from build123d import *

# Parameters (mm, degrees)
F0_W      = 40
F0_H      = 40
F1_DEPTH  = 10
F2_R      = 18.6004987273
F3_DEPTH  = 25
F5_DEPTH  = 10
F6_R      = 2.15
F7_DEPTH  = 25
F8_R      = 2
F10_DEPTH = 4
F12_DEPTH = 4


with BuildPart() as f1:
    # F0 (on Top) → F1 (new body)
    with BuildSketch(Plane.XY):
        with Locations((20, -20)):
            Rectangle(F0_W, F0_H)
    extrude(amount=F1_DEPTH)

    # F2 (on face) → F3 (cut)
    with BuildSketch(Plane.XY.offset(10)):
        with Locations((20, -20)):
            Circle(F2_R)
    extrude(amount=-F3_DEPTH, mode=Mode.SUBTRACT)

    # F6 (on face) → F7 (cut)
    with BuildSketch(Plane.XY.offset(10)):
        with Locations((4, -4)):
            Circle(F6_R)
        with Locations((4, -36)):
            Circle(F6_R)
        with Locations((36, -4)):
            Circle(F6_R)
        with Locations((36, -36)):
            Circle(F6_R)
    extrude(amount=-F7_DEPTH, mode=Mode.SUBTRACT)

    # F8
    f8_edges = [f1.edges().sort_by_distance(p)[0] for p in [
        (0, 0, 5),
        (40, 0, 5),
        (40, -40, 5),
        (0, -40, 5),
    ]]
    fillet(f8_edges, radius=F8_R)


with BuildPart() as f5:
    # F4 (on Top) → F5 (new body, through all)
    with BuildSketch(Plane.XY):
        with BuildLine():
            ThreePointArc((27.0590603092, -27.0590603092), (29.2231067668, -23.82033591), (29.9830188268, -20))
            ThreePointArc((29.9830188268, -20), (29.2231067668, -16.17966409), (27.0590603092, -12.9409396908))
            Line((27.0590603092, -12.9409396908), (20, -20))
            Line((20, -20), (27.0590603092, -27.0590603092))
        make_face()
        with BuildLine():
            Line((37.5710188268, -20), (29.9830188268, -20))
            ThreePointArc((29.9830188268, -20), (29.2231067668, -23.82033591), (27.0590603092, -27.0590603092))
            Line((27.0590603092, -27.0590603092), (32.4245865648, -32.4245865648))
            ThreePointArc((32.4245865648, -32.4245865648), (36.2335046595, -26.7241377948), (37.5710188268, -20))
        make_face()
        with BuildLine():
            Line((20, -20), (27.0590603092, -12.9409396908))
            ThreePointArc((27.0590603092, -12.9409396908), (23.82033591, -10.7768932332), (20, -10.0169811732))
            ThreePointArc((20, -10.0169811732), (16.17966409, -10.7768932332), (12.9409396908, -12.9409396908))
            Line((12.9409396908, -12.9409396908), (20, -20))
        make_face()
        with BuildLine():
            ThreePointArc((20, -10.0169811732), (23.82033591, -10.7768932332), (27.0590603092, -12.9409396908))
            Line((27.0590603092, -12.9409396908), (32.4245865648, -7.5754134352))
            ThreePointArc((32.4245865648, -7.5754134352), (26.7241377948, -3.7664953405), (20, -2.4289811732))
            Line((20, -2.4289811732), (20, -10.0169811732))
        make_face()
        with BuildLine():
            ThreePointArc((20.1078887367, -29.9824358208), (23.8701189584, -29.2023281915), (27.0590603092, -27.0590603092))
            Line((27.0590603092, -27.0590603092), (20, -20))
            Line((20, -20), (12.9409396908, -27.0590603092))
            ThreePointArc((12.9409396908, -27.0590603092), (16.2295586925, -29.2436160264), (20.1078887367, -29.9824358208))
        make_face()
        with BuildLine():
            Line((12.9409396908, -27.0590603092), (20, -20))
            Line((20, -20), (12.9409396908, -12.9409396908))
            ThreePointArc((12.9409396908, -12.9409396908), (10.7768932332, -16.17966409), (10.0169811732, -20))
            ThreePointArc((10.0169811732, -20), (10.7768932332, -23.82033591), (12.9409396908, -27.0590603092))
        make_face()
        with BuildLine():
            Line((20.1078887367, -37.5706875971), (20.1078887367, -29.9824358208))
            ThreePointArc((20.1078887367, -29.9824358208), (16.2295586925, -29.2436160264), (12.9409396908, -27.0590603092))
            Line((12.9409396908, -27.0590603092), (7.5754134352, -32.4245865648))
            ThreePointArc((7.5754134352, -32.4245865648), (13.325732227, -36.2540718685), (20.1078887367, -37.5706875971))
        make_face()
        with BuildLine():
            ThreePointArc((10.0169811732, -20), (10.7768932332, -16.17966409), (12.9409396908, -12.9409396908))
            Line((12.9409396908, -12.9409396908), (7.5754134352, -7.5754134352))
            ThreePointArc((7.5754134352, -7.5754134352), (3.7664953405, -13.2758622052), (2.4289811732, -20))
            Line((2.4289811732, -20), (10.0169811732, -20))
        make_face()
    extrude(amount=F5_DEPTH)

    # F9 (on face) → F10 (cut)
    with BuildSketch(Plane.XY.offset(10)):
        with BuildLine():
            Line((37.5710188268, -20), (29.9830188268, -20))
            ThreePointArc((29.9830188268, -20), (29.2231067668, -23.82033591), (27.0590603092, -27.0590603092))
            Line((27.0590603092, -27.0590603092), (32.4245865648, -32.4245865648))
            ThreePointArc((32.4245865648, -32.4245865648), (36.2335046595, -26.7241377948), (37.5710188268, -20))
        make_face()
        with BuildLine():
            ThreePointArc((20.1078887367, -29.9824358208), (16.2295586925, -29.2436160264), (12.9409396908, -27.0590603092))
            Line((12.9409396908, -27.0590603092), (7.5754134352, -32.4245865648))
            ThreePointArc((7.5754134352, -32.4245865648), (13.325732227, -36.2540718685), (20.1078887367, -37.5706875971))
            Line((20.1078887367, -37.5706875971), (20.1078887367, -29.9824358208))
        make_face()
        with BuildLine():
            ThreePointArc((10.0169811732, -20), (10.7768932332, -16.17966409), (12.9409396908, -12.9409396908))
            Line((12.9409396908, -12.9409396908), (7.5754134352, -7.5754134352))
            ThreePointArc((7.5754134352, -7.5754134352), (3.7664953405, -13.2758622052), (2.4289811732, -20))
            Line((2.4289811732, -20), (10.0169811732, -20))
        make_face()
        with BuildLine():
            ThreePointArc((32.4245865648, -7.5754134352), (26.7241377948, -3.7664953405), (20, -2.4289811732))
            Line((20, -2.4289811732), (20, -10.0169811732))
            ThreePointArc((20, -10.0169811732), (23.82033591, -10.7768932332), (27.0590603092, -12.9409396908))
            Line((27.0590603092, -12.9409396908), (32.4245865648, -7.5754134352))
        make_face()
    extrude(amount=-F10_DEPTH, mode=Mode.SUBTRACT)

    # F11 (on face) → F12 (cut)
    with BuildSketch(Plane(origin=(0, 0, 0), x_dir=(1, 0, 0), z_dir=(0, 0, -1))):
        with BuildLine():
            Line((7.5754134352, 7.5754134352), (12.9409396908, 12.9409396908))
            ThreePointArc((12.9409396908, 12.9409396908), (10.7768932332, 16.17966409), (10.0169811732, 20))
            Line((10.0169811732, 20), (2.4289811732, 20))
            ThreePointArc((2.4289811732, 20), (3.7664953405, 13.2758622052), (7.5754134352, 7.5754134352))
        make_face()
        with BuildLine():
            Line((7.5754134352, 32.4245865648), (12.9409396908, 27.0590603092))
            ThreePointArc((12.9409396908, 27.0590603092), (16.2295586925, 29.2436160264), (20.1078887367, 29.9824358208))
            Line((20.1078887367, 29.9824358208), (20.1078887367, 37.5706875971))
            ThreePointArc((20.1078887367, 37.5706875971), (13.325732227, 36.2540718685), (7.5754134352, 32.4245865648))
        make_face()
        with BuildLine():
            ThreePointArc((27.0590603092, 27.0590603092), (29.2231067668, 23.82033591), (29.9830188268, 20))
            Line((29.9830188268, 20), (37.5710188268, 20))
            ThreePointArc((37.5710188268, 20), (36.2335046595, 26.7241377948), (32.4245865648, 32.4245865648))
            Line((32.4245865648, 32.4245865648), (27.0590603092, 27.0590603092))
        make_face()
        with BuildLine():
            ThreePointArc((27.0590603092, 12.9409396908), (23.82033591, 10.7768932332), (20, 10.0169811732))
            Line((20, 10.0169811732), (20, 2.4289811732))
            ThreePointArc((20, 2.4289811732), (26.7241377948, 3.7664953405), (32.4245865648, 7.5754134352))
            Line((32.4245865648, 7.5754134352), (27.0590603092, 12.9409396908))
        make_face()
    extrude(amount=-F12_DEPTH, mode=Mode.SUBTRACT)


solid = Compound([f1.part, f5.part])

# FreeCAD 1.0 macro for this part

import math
import FreeCAD as App
import Part
import Sketcher
Q = App.Units.Quantity


def edges_at(feature, points):
    """Names of the edges that pass closest to the given points."""
    edges = feature.Shape.Edges
    near = lambda p: min(range(len(edges)), key=lambda i: edges[i].distToShape(Part.Vertex(*p))[0])
    return sorted({f"Edge{near(p) + 1}" for p in points})


def add_polygon(sketch, points):
    """Adds a closed chain of lines whose ends are joined by coincident constraints."""
    first, n = sketch.GeometryCount, len(points)
    for a, b in zip(points, points[1:] + points[:1]):
        sketch.addGeometry(Part.LineSegment(App.Vector(*a, 0), App.Vector(*b, 0)), False)
    for i in range(n):
        sketch.addConstraint(Sketcher.Constraint("Coincident", first + i, 2, first + (i + 1) % n, 1))

doc = App.newDocument("Part")
body = doc.addObject("PartDesign::Body", "Body")

# Sketch on XY plane
sketch1 = body.newObject("Sketcher::SketchObject", "Sketch")
sketch1.AttachmentSupport = (doc.getObject("XY_Plane"), [""])
sketch1.MapMode = "FlatFace"
add_polygon(sketch1, [(0, 0), (0, -40), (40, -40), (40, 0)])  # lines 0-3
sketch1.addConstraint(Sketcher.Constraint("Vertical", 0))
sketch1.addConstraint(Sketcher.Constraint("Horizontal", 1))
sketch1.addConstraint(Sketcher.Constraint("Vertical", 2))
sketch1.addConstraint(Sketcher.Constraint("Horizontal", 3))
sketch1.addConstraint(Sketcher.Constraint("Coincident", 3, 2, -1, 1))
sketch1.addConstraint(Sketcher.Constraint("Equal", 3, 0))
sketch1.addConstraint(Sketcher.Constraint("DistanceX", 1, 1, 1, 2, Q("40 mm")))
pad1 = body.newObject("PartDesign::Pad", "Pad")
pad1.Profile = sketch1
pad1.Length = 10

# Sketch on XY plane
sketch2 = body.newObject("Sketcher::SketchObject", "Sketch001")
sketch2.AttachmentSupport = (doc.getObject("XY_Plane"), [""])
sketch2.MapMode = "FlatFace"
sketch2.AttachmentOffset = App.Placement(App.Vector(0, 0, 10), App.Rotation())
sketch2.addGeometry(Part.Circle(App.Vector(20, -20, 0), App.Vector(0, 0, 1), 19), False)
sketch2.addConstraint(Sketcher.Constraint("DistanceX", -1, 1, 0, 3, Q("20 mm")))
sketch2.addConstraint(Sketcher.Constraint("DistanceY", 0, 3, -1, 1, Q("20 mm")))
sketch2.addConstraint(Sketcher.Constraint("Diameter", 0, Q("37.200997 mm")))
pocket1 = body.newObject("PartDesign::Pocket", "Pocket")
pocket1.Profile = sketch2
pocket1.Length = 25

# Sketch on XY plane
sketch3 = body.newObject("Sketcher::SketchObject", "Sketch002")
sketch3.AttachmentSupport = (doc.getObject("XY_Plane"), [""])
sketch3.MapMode = "FlatFace"
sketch3.AttachmentOffset = App.Placement(App.Vector(0, 0, 10), App.Rotation())
sketch3.addGeometry(Part.Circle(App.Vector(4, -4, 0), App.Vector(0, 0, 1), 2.1), False)
sketch3.addGeometry(Part.Circle(App.Vector(4, -36, 0), App.Vector(0, 0, 1), 2.1), False)
sketch3.addGeometry(Part.Circle(App.Vector(36, -4, 0), App.Vector(0, 0, 1), 2.1), False)
sketch3.addGeometry(Part.Circle(App.Vector(36, -36, 0), App.Vector(0, 0, 1), 2.1), False)
sketch3.addConstraint(Sketcher.Constraint("Equal", 0, 1))
sketch3.addConstraint(Sketcher.Constraint("Equal", 1, 2))
sketch3.addConstraint(Sketcher.Constraint("Equal", 2, 3))
sketch3.addConstraint(Sketcher.Constraint("Horizontal", 0, 3, 2, 3))
sketch3.addConstraint(Sketcher.Constraint("Horizontal", 1, 3, 3, 3))
sketch3.addConstraint(Sketcher.Constraint("Vertical", 0, 3, 1, 3))
sketch3.addConstraint(Sketcher.Constraint("Vertical", 2, 3, 3, 3))
sketch3.addConstraint(Sketcher.Constraint("Diameter", 0, Q("4.3 mm")))
sketch3.addConstraint(Sketcher.Constraint("DistanceX", -1, 1, 0, 3, Q("4 mm")))
sketch3.addConstraint(Sketcher.Constraint("DistanceY", 0, 3, -1, 1, Q("4 mm")))
sketch3.addConstraint(Sketcher.Constraint("DistanceY", 1, 3, -1, 1, Q("36 mm")))
sketch3.addConstraint(Sketcher.Constraint("DistanceX", -1, 1, 2, 3, Q("36 mm")))
pocket2 = body.newObject("PartDesign::Pocket", "Pocket001")
pocket2.Profile = sketch3
pocket2.Length = 25
doc.recompute()

fillet = body.newObject("PartDesign::Fillet", "Fillet")
fillet.Base = (pocket2, edges_at(pocket2, [
    (0, 0, 5),
    (40, 0, 5),
    (40, -40, 5),
    (0, -40, 5),
]))
fillet.Radius = 2
body2 = doc.addObject("PartDesign::Body", "Body001")

# Sketch on XY plane
sketch4 = body2.newObject("Sketcher::SketchObject", "Sketch003")
sketch4.AttachmentSupport = (doc.getObject("XY_Plane001"), [""])
sketch4.MapMode = "FlatFace"
sketch4.addGeometry(Part.ArcOfCircle(Part.Circle(App.Vector(20, -20, 0), App.Vector(0, 0, 1), 9.983019), math.radians(0), math.radians(45)), False)
sketch4.addGeometry(Part.LineSegment(App.Vector(27.05906, -12.94094, 0), App.Vector(32.424587, -7.575413, 0)), False)
sketch4.addGeometry(Part.ArcOfCircle(Part.Circle(App.Vector(20, -20, 0), App.Vector(0, 0, 1), 17.571019), math.radians(45), math.radians(90)), False)
sketch4.addGeometry(Part.LineSegment(App.Vector(20, -2.428981, 0), App.Vector(20, -10.016981, 0)), False)
sketch4.addGeometry(Part.ArcOfCircle(Part.Circle(App.Vector(20, -20, 0), App.Vector(0, 0, 1), 9.983019), math.radians(90), math.radians(135)), False)
sketch4.addGeometry(Part.LineSegment(App.Vector(12.94094, -12.94094, 0), App.Vector(7.575413, -7.575413, 0)), False)
sketch4.addGeometry(Part.ArcOfCircle(Part.Circle(App.Vector(20, -20, 0), App.Vector(0, 0, 1), 17.571019), math.radians(135), math.radians(180)), False)
sketch4.addGeometry(Part.LineSegment(App.Vector(2.428981, -20, 0), App.Vector(10.016981, -20, 0)), False)
sketch4.addGeometry(Part.ArcOfCircle(Part.Circle(App.Vector(20, -20, 0), App.Vector(0, 0, 1), 9.983019), math.radians(180), math.radians(225)), False)
sketch4.addGeometry(Part.LineSegment(App.Vector(12.94094, -27.05906, 0), App.Vector(7.575413, -32.424587, 0)), False)
sketch4.addGeometry(Part.ArcOfCircle(Part.Circle(App.Vector(20, -20, 0), App.Vector(0, 0, 1), 17.571019), math.radians(-135), math.radians(-89.648193)), False)
sketch4.addGeometry(Part.LineSegment(App.Vector(20.107889, -37.570688, 0), App.Vector(20.107889, -29.982436, 0)), False)
sketch4.addGeometry(Part.ArcOfCircle(Part.Circle(App.Vector(20, -20, 0), App.Vector(0, 0, 1), 9.983019), math.radians(-89.38078), math.radians(-45)), False)
sketch4.addGeometry(Part.LineSegment(App.Vector(27.05906, -27.05906, 0), App.Vector(32.424587, -32.424587, 0)), False)
sketch4.addGeometry(Part.ArcOfCircle(Part.Circle(App.Vector(20, -20, 0), App.Vector(0, 0, 1), 17.571019), math.radians(-45), math.radians(0)), False)
sketch4.addGeometry(Part.LineSegment(App.Vector(37.571019, -20, 0), App.Vector(29.983019, -20, 0)), False)
sketch4.addConstraint(Sketcher.Constraint("Coincident", 0, 2, 1, 1))
sketch4.addConstraint(Sketcher.Constraint("Coincident", 1, 2, 2, 1))
sketch4.addConstraint(Sketcher.Constraint("Coincident", 2, 2, 3, 1))
sketch4.addConstraint(Sketcher.Constraint("Coincident", 3, 2, 4, 1))
sketch4.addConstraint(Sketcher.Constraint("Coincident", 4, 2, 5, 1))
sketch4.addConstraint(Sketcher.Constraint("Coincident", 5, 2, 6, 1))
sketch4.addConstraint(Sketcher.Constraint("Coincident", 6, 2, 7, 1))
sketch4.addConstraint(Sketcher.Constraint("Coincident", 7, 2, 8, 1))
sketch4.addConstraint(Sketcher.Constraint("Coincident", 8, 2, 9, 1))
sketch4.addConstraint(Sketcher.Constraint("Coincident", 9, 2, 10, 1))
sketch4.addConstraint(Sketcher.Constraint("Coincident", 10, 2, 11, 1))
sketch4.addConstraint(Sketcher.Constraint("Coincident", 11, 2, 12, 1))
sketch4.addConstraint(Sketcher.Constraint("Coincident", 12, 2, 13, 1))
sketch4.addConstraint(Sketcher.Constraint("Coincident", 13, 2, 14, 1))
sketch4.addConstraint(Sketcher.Constraint("Coincident", 14, 2, 15, 1))
sketch4.addConstraint(Sketcher.Constraint("Coincident", 15, 2, 0, 1))
sketch4.addConstraint(Sketcher.Constraint("Vertical", 3))
sketch4.addConstraint(Sketcher.Constraint("Horizontal", 7))
sketch4.addConstraint(Sketcher.Constraint("Vertical", 11))
sketch4.addConstraint(Sketcher.Constraint("Horizontal", 15))
sketch4.addConstraint(Sketcher.Constraint("Coincident", 2, 3, 0, 3))
sketch4.addConstraint(Sketcher.Constraint("Coincident", 4, 3, 0, 3))
sketch4.addConstraint(Sketcher.Constraint("Coincident", 6, 3, 0, 3))
sketch4.addConstraint(Sketcher.Constraint("Coincident", 8, 3, 0, 3))
sketch4.addConstraint(Sketcher.Constraint("Coincident", 10, 3, 0, 3))
sketch4.addConstraint(Sketcher.Constraint("Coincident", 12, 3, 0, 3))
sketch4.addConstraint(Sketcher.Constraint("Coincident", 14, 3, 0, 3))
sketch4.addConstraint(Sketcher.Constraint("Equal", 0, 4))
sketch4.addConstraint(Sketcher.Constraint("Equal", 2, 6))
sketch4.addConstraint(Sketcher.Constraint("Equal", 4, 8))
sketch4.addConstraint(Sketcher.Constraint("Equal", 6, 10))
sketch4.addConstraint(Sketcher.Constraint("Equal", 8, 12))
sketch4.addConstraint(Sketcher.Constraint("Equal", 10, 14))
sketch4.addConstraint(Sketcher.Constraint("Perpendicular", 1, 5))
sketch4.addConstraint(Sketcher.Constraint("Perpendicular", 5, 9))
sketch4.addConstraint(Sketcher.Constraint("Perpendicular", 9, 13))
sketch4.addConstraint(Sketcher.Constraint("Horizontal", 0, 2, 4, 2))
sketch4.addConstraint(Sketcher.Constraint("Horizontal", 1, 2, 5, 2))
sketch4.addConstraint(Sketcher.Constraint("Horizontal", 14, 3, 6, 2))
sketch4.addConstraint(Sketcher.Constraint("Horizontal", 8, 2, 12, 2))
sketch4.addConstraint(Sketcher.Constraint("Horizontal", 7, 2, 14, 2))
sketch4.addConstraint(Sketcher.Constraint("Vertical", 14, 3, 2, 2))
sketch4.addConstraint(Sketcher.Constraint("Vertical", 4, 2, 8, 2))
sketch4.addConstraint(Sketcher.Constraint("DistanceX", -1, 1, 0, 3, Q("20 mm")))
sketch4.addConstraint(Sketcher.Constraint("DistanceY", 0, 3, -1, 1, Q("20 mm")))
sketch4.addConstraint(Sketcher.Constraint("DistanceX", 7, 1, 7, 2, Q("7.588 mm")))
sketch4.addConstraint(Sketcher.Constraint("Radius", 0, Q("9.983019 mm")))
sketch4.addConstraint(Sketcher.Constraint("DistanceY", 11, 1, 11, 2, Q("7.588252 mm")))
sketch4.addConstraint(Sketcher.Constraint("DistanceY", 10, 2, 9, 2, Q("5.146101 mm")))
pad2 = body2.newObject("PartDesign::Pad", "Pad001")
pad2.Profile = sketch4
pad2.Length = 10

# Sketch on XY plane
sketch5 = body2.newObject("Sketcher::SketchObject", "Sketch004")
sketch5.AttachmentSupport = (doc.getObject("XY_Plane001"), [""])
sketch5.MapMode = "FlatFace"
sketch5.AttachmentOffset = App.Placement(App.Vector(0, 0, 10), App.Rotation())
sketch5.addGeometry(Part.LineSegment(App.Vector(37.571019, -20, 0), App.Vector(29.983019, -20, 0)), False)
sketch5.addGeometry(Part.ArcOfCircle(Part.Circle(App.Vector(20, -20, 0), App.Vector(0, 0, 1), 9.983019), math.radians(-45), math.radians(0)), False)
sketch5.addGeometry(Part.LineSegment(App.Vector(27.05906, -27.05906, 0), App.Vector(32.424587, -32.424587, 0)), False)
sketch5.addGeometry(Part.ArcOfCircle(Part.Circle(App.Vector(20, -20, 0), App.Vector(0, 0, 1), 17.571019), math.radians(-45), math.radians(0)), False)
sketch5.addGeometry(Part.ArcOfCircle(Part.Circle(App.Vector(20, -20, 0), App.Vector(0, 0, 1), 9.983019), math.radians(-135), math.radians(-89.38078)), False)
sketch5.addGeometry(Part.LineSegment(App.Vector(12.94094, -27.05906, 0), App.Vector(7.575413, -32.424587, 0)), False)
sketch5.addGeometry(Part.ArcOfCircle(Part.Circle(App.Vector(20, -20, 0), App.Vector(0, 0, 1), 17.571019), math.radians(-135), math.radians(-89.648193)), False)
sketch5.addGeometry(Part.LineSegment(App.Vector(20.107889, -37.570688, 0), App.Vector(20.107889, -29.982436, 0)), False)
sketch5.addGeometry(Part.ArcOfCircle(Part.Circle(App.Vector(20, -20, 0), App.Vector(0, 0, 1), 9.983019), math.radians(135), math.radians(180)), False)
sketch5.addGeometry(Part.LineSegment(App.Vector(12.94094, -12.94094, 0), App.Vector(7.575413, -7.575413, 0)), False)
sketch5.addGeometry(Part.ArcOfCircle(Part.Circle(App.Vector(20, -20, 0), App.Vector(0, 0, 1), 17.571019), math.radians(135), math.radians(180)), False)
sketch5.addGeometry(Part.LineSegment(App.Vector(2.428981, -20, 0), App.Vector(10.016981, -20, 0)), False)
sketch5.addGeometry(Part.ArcOfCircle(Part.Circle(App.Vector(20, -20, 0), App.Vector(0, 0, 1), 17.571019), math.radians(45), math.radians(90)), False)
sketch5.addGeometry(Part.LineSegment(App.Vector(20, -2.428981, 0), App.Vector(20, -10.016981, 0)), False)
sketch5.addGeometry(Part.ArcOfCircle(Part.Circle(App.Vector(20, -20, 0), App.Vector(0, 0, 1), 9.983019), math.radians(45), math.radians(90)), False)
sketch5.addGeometry(Part.LineSegment(App.Vector(27.05906, -12.94094, 0), App.Vector(32.424587, -7.575413, 0)), False)
sketch5.addConstraint(Sketcher.Constraint("Coincident", 0, 2, 1, 2))
sketch5.addConstraint(Sketcher.Constraint("Coincident", 1, 1, 2, 1))
sketch5.addConstraint(Sketcher.Constraint("Coincident", 2, 2, 3, 1))
sketch5.addConstraint(Sketcher.Constraint("Coincident", 3, 2, 0, 1))
sketch5.addConstraint(Sketcher.Constraint("Coincident", 4, 1, 5, 1))
sketch5.addConstraint(Sketcher.Constraint("Coincident", 5, 2, 6, 1))
sketch5.addConstraint(Sketcher.Constraint("Coincident", 6, 2, 7, 1))
sketch5.addConstraint(Sketcher.Constraint("Coincident", 7, 2, 4, 2))
sketch5.addConstraint(Sketcher.Constraint("Coincident", 8, 1, 9, 1))
sketch5.addConstraint(Sketcher.Constraint("Coincident", 9, 2, 10, 1))
sketch5.addConstraint(Sketcher.Constraint("Coincident", 10, 2, 11, 1))
sketch5.addConstraint(Sketcher.Constraint("Coincident", 11, 2, 8, 2))
sketch5.addConstraint(Sketcher.Constraint("Coincident", 12, 2, 13, 1))
sketch5.addConstraint(Sketcher.Constraint("Coincident", 13, 2, 14, 2))
sketch5.addConstraint(Sketcher.Constraint("Coincident", 14, 1, 15, 1))
sketch5.addConstraint(Sketcher.Constraint("Coincident", 15, 2, 12, 1))
sketch5.addConstraint(Sketcher.Constraint("Horizontal", 0))
sketch5.addConstraint(Sketcher.Constraint("Vertical", 7))
sketch5.addConstraint(Sketcher.Constraint("Horizontal", 11))
sketch5.addConstraint(Sketcher.Constraint("Vertical", 13))
sketch5.addConstraint(Sketcher.Constraint("Coincident", 3, 3, 1, 3))
sketch5.addConstraint(Sketcher.Constraint("Coincident", 4, 3, 1, 3))
sketch5.addConstraint(Sketcher.Constraint("Coincident", 6, 3, 1, 3))
sketch5.addConstraint(Sketcher.Constraint("Coincident", 8, 3, 1, 3))
sketch5.addConstraint(Sketcher.Constraint("Coincident", 10, 3, 1, 3))
sketch5.addConstraint(Sketcher.Constraint("Coincident", 12, 3, 1, 3))
sketch5.addConstraint(Sketcher.Constraint("Coincident", 14, 3, 1, 3))
sketch5.addConstraint(Sketcher.Constraint("Equal", 1, 4))
sketch5.addConstraint(Sketcher.Constraint("Equal", 3, 6))
sketch5.addConstraint(Sketcher.Constraint("Equal", 4, 8))
sketch5.addConstraint(Sketcher.Constraint("Equal", 6, 10))
sketch5.addConstraint(Sketcher.Constraint("Equal", 10, 12))
sketch5.addConstraint(Sketcher.Constraint("Equal", 8, 14))
sketch5.addConstraint(Sketcher.Constraint("Perpendicular", 2, 5))
sketch5.addConstraint(Sketcher.Constraint("Perpendicular", 5, 9))
sketch5.addConstraint(Sketcher.Constraint("Perpendicular", 9, 15))
sketch5.addConstraint(Sketcher.Constraint("Horizontal", 14, 3, 0, 2))
sketch5.addConstraint(Sketcher.Constraint("Horizontal", 1, 1, 4, 1))
sketch5.addConstraint(Sketcher.Constraint("Horizontal", 2, 2, 5, 2))
sketch5.addConstraint(Sketcher.Constraint("Horizontal", 3, 2, 10, 2))
sketch5.addConstraint(Sketcher.Constraint("Horizontal", 8, 1, 14, 1))
sketch5.addConstraint(Sketcher.Constraint("Vertical", 4, 1, 8, 1))
sketch5.addConstraint(Sketcher.Constraint("Vertical", 14, 3, 12, 2))
sketch5.addConstraint(Sketcher.Constraint("DistanceX", -1, 1, 1, 3, Q("20 mm")))
sketch5.addConstraint(Sketcher.Constraint("DistanceY", 1, 3, -1, 1, Q("20 mm")))
sketch5.addConstraint(Sketcher.Constraint("DistanceX", 0, 2, 0, 1, Q("7.588 mm")))
sketch5.addConstraint(Sketcher.Constraint("Radius", 1, Q("9.983019 mm")))
sketch5.addConstraint(Sketcher.Constraint("DistanceY", 7, 1, 7, 2, Q("7.588252 mm")))
sketch5.addConstraint(Sketcher.Constraint("DistanceY", 6, 2, 2, 2, Q("5.146101 mm")))
pocket3 = body2.newObject("PartDesign::Pocket", "Pocket002")
pocket3.Profile = sketch5
pocket3.Length = 4

# Sketch on XY plane
sketch6 = body2.newObject("Sketcher::SketchObject", "Sketch005")
sketch6.AttachmentSupport = (doc.getObject("XY_Plane001"), [""])
sketch6.MapMode = "FlatFace"
sketch6.addGeometry(Part.LineSegment(App.Vector(7.575413, -7.575413, 0), App.Vector(12.94094, -12.94094, 0)), False)
sketch6.addGeometry(Part.ArcOfCircle(Part.Circle(App.Vector(20, -20, 0), App.Vector(0, 0, 1), 9.983019), math.radians(135), math.radians(180)), False)
sketch6.addGeometry(Part.LineSegment(App.Vector(10.016981, -20, 0), App.Vector(2.428981, -20, 0)), False)
sketch6.addGeometry(Part.ArcOfCircle(Part.Circle(App.Vector(20, -20, 0), App.Vector(0, 0, 1), 17.571019), math.radians(135), math.radians(180)), False)
sketch6.addGeometry(Part.LineSegment(App.Vector(7.575413, -32.424587, 0), App.Vector(12.94094, -27.05906, 0)), False)
sketch6.addGeometry(Part.ArcOfCircle(Part.Circle(App.Vector(20, -20, 0), App.Vector(0, 0, 1), 9.983019), math.radians(-135), math.radians(-89.38078)), False)
sketch6.addGeometry(Part.LineSegment(App.Vector(20.107889, -29.982436, 0), App.Vector(20.107889, -37.570688, 0)), False)
sketch6.addGeometry(Part.ArcOfCircle(Part.Circle(App.Vector(20, -20, 0), App.Vector(0, 0, 1), 17.571019), math.radians(-135), math.radians(-89.648193)), False)
sketch6.addGeometry(Part.ArcOfCircle(Part.Circle(App.Vector(20, -20, 0), App.Vector(0, 0, 1), 9.983019), math.radians(-45), math.radians(0)), False)
sketch6.addGeometry(Part.LineSegment(App.Vector(29.983019, -20, 0), App.Vector(37.571019, -20, 0)), False)
sketch6.addGeometry(Part.ArcOfCircle(Part.Circle(App.Vector(20, -20, 0), App.Vector(0, 0, 1), 17.571019), math.radians(-45), math.radians(0)), False)
sketch6.addGeometry(Part.LineSegment(App.Vector(32.424587, -32.424587, 0), App.Vector(27.05906, -27.05906, 0)), False)
sketch6.addGeometry(Part.ArcOfCircle(Part.Circle(App.Vector(20, -20, 0), App.Vector(0, 0, 1), 9.983019), math.radians(45), math.radians(90)), False)
sketch6.addGeometry(Part.LineSegment(App.Vector(20, -10.016981, 0), App.Vector(20, -2.428981, 0)), False)
sketch6.addGeometry(Part.ArcOfCircle(Part.Circle(App.Vector(20, -20, 0), App.Vector(0, 0, 1), 17.571019), math.radians(45), math.radians(90)), False)
sketch6.addGeometry(Part.LineSegment(App.Vector(32.424587, -7.575413, 0), App.Vector(27.05906, -12.94094, 0)), False)
sketch6.addConstraint(Sketcher.Constraint("Coincident", 0, 2, 1, 1))
sketch6.addConstraint(Sketcher.Constraint("Coincident", 1, 2, 2, 1))
sketch6.addConstraint(Sketcher.Constraint("Coincident", 2, 2, 3, 2))
sketch6.addConstraint(Sketcher.Constraint("Coincident", 3, 1, 0, 1))
sketch6.addConstraint(Sketcher.Constraint("Coincident", 4, 2, 5, 1))
sketch6.addConstraint(Sketcher.Constraint("Coincident", 5, 2, 6, 1))
sketch6.addConstraint(Sketcher.Constraint("Coincident", 6, 2, 7, 2))
sketch6.addConstraint(Sketcher.Constraint("Coincident", 7, 1, 4, 1))
sketch6.addConstraint(Sketcher.Constraint("Coincident", 8, 2, 9, 1))
sketch6.addConstraint(Sketcher.Constraint("Coincident", 9, 2, 10, 2))
sketch6.addConstraint(Sketcher.Constraint("Coincident", 10, 1, 11, 1))
sketch6.addConstraint(Sketcher.Constraint("Coincident", 11, 2, 8, 1))
sketch6.addConstraint(Sketcher.Constraint("Coincident", 12, 2, 13, 1))
sketch6.addConstraint(Sketcher.Constraint("Coincident", 13, 2, 14, 2))
sketch6.addConstraint(Sketcher.Constraint("Coincident", 14, 1, 15, 1))
sketch6.addConstraint(Sketcher.Constraint("Coincident", 15, 2, 12, 1))
sketch6.addConstraint(Sketcher.Constraint("Horizontal", 2))
sketch6.addConstraint(Sketcher.Constraint("Vertical", 6))
sketch6.addConstraint(Sketcher.Constraint("Horizontal", 9))
sketch6.addConstraint(Sketcher.Constraint("Vertical", 13))
sketch6.addConstraint(Sketcher.Constraint("Coincident", 3, 3, 1, 3))
sketch6.addConstraint(Sketcher.Constraint("Coincident", 5, 3, 1, 3))
sketch6.addConstraint(Sketcher.Constraint("Coincident", 7, 3, 1, 3))
sketch6.addConstraint(Sketcher.Constraint("Coincident", 8, 3, 1, 3))
sketch6.addConstraint(Sketcher.Constraint("Coincident", 10, 3, 1, 3))
sketch6.addConstraint(Sketcher.Constraint("Coincident", 12, 3, 1, 3))
sketch6.addConstraint(Sketcher.Constraint("Coincident", 14, 3, 1, 3))
sketch6.addConstraint(Sketcher.Constraint("Equal", 1, 5))
sketch6.addConstraint(Sketcher.Constraint("Equal", 3, 7))
sketch6.addConstraint(Sketcher.Constraint("Equal", 5, 8))
sketch6.addConstraint(Sketcher.Constraint("Equal", 7, 10))
sketch6.addConstraint(Sketcher.Constraint("Equal", 8, 12))
sketch6.addConstraint(Sketcher.Constraint("Equal", 10, 14))
sketch6.addConstraint(Sketcher.Constraint("Perpendicular", 0, 4))
sketch6.addConstraint(Sketcher.Constraint("Perpendicular", 4, 11))
sketch6.addConstraint(Sketcher.Constraint("Perpendicular", 11, 15))
sketch6.addConstraint(Sketcher.Constraint("Horizontal", 14, 3, 1, 2))
sketch6.addConstraint(Sketcher.Constraint("Horizontal", 2, 2, 8, 2))
sketch6.addConstraint(Sketcher.Constraint("Horizontal", 7, 1, 10, 1))
sketch6.addConstraint(Sketcher.Constraint("Horizontal", 4, 2, 11, 2))
sketch6.addConstraint(Sketcher.Constraint("Horizontal", 3, 1, 14, 1))
sketch6.addConstraint(Sketcher.Constraint("Vertical", 0, 2, 4, 2))
sketch6.addConstraint(Sketcher.Constraint("Vertical", 14, 3, 12, 2))
sketch6.addConstraint(Sketcher.Constraint("DistanceX", -1, 1, 1, 3, Q("20 mm")))
sketch6.addConstraint(Sketcher.Constraint("DistanceY", 1, 3, -1, 1, Q("20 mm")))
sketch6.addConstraint(Sketcher.Constraint("DistanceX", 2, 2, 2, 1, Q("7.588 mm")))
sketch6.addConstraint(Sketcher.Constraint("Radius", 1, Q("9.983019 mm")))
sketch6.addConstraint(Sketcher.Constraint("DistanceY", 6, 2, 6, 1, Q("7.588252 mm")))
sketch6.addConstraint(Sketcher.Constraint("DistanceY", 6, 2, 7, 1, Q("5.146101 mm")))
pocket4 = body2.newObject("PartDesign::Pocket", "Pocket003")
pocket4.Profile = sketch6
pocket4.Length = 4
pocket4.Reversed = True

doc.recompute()
